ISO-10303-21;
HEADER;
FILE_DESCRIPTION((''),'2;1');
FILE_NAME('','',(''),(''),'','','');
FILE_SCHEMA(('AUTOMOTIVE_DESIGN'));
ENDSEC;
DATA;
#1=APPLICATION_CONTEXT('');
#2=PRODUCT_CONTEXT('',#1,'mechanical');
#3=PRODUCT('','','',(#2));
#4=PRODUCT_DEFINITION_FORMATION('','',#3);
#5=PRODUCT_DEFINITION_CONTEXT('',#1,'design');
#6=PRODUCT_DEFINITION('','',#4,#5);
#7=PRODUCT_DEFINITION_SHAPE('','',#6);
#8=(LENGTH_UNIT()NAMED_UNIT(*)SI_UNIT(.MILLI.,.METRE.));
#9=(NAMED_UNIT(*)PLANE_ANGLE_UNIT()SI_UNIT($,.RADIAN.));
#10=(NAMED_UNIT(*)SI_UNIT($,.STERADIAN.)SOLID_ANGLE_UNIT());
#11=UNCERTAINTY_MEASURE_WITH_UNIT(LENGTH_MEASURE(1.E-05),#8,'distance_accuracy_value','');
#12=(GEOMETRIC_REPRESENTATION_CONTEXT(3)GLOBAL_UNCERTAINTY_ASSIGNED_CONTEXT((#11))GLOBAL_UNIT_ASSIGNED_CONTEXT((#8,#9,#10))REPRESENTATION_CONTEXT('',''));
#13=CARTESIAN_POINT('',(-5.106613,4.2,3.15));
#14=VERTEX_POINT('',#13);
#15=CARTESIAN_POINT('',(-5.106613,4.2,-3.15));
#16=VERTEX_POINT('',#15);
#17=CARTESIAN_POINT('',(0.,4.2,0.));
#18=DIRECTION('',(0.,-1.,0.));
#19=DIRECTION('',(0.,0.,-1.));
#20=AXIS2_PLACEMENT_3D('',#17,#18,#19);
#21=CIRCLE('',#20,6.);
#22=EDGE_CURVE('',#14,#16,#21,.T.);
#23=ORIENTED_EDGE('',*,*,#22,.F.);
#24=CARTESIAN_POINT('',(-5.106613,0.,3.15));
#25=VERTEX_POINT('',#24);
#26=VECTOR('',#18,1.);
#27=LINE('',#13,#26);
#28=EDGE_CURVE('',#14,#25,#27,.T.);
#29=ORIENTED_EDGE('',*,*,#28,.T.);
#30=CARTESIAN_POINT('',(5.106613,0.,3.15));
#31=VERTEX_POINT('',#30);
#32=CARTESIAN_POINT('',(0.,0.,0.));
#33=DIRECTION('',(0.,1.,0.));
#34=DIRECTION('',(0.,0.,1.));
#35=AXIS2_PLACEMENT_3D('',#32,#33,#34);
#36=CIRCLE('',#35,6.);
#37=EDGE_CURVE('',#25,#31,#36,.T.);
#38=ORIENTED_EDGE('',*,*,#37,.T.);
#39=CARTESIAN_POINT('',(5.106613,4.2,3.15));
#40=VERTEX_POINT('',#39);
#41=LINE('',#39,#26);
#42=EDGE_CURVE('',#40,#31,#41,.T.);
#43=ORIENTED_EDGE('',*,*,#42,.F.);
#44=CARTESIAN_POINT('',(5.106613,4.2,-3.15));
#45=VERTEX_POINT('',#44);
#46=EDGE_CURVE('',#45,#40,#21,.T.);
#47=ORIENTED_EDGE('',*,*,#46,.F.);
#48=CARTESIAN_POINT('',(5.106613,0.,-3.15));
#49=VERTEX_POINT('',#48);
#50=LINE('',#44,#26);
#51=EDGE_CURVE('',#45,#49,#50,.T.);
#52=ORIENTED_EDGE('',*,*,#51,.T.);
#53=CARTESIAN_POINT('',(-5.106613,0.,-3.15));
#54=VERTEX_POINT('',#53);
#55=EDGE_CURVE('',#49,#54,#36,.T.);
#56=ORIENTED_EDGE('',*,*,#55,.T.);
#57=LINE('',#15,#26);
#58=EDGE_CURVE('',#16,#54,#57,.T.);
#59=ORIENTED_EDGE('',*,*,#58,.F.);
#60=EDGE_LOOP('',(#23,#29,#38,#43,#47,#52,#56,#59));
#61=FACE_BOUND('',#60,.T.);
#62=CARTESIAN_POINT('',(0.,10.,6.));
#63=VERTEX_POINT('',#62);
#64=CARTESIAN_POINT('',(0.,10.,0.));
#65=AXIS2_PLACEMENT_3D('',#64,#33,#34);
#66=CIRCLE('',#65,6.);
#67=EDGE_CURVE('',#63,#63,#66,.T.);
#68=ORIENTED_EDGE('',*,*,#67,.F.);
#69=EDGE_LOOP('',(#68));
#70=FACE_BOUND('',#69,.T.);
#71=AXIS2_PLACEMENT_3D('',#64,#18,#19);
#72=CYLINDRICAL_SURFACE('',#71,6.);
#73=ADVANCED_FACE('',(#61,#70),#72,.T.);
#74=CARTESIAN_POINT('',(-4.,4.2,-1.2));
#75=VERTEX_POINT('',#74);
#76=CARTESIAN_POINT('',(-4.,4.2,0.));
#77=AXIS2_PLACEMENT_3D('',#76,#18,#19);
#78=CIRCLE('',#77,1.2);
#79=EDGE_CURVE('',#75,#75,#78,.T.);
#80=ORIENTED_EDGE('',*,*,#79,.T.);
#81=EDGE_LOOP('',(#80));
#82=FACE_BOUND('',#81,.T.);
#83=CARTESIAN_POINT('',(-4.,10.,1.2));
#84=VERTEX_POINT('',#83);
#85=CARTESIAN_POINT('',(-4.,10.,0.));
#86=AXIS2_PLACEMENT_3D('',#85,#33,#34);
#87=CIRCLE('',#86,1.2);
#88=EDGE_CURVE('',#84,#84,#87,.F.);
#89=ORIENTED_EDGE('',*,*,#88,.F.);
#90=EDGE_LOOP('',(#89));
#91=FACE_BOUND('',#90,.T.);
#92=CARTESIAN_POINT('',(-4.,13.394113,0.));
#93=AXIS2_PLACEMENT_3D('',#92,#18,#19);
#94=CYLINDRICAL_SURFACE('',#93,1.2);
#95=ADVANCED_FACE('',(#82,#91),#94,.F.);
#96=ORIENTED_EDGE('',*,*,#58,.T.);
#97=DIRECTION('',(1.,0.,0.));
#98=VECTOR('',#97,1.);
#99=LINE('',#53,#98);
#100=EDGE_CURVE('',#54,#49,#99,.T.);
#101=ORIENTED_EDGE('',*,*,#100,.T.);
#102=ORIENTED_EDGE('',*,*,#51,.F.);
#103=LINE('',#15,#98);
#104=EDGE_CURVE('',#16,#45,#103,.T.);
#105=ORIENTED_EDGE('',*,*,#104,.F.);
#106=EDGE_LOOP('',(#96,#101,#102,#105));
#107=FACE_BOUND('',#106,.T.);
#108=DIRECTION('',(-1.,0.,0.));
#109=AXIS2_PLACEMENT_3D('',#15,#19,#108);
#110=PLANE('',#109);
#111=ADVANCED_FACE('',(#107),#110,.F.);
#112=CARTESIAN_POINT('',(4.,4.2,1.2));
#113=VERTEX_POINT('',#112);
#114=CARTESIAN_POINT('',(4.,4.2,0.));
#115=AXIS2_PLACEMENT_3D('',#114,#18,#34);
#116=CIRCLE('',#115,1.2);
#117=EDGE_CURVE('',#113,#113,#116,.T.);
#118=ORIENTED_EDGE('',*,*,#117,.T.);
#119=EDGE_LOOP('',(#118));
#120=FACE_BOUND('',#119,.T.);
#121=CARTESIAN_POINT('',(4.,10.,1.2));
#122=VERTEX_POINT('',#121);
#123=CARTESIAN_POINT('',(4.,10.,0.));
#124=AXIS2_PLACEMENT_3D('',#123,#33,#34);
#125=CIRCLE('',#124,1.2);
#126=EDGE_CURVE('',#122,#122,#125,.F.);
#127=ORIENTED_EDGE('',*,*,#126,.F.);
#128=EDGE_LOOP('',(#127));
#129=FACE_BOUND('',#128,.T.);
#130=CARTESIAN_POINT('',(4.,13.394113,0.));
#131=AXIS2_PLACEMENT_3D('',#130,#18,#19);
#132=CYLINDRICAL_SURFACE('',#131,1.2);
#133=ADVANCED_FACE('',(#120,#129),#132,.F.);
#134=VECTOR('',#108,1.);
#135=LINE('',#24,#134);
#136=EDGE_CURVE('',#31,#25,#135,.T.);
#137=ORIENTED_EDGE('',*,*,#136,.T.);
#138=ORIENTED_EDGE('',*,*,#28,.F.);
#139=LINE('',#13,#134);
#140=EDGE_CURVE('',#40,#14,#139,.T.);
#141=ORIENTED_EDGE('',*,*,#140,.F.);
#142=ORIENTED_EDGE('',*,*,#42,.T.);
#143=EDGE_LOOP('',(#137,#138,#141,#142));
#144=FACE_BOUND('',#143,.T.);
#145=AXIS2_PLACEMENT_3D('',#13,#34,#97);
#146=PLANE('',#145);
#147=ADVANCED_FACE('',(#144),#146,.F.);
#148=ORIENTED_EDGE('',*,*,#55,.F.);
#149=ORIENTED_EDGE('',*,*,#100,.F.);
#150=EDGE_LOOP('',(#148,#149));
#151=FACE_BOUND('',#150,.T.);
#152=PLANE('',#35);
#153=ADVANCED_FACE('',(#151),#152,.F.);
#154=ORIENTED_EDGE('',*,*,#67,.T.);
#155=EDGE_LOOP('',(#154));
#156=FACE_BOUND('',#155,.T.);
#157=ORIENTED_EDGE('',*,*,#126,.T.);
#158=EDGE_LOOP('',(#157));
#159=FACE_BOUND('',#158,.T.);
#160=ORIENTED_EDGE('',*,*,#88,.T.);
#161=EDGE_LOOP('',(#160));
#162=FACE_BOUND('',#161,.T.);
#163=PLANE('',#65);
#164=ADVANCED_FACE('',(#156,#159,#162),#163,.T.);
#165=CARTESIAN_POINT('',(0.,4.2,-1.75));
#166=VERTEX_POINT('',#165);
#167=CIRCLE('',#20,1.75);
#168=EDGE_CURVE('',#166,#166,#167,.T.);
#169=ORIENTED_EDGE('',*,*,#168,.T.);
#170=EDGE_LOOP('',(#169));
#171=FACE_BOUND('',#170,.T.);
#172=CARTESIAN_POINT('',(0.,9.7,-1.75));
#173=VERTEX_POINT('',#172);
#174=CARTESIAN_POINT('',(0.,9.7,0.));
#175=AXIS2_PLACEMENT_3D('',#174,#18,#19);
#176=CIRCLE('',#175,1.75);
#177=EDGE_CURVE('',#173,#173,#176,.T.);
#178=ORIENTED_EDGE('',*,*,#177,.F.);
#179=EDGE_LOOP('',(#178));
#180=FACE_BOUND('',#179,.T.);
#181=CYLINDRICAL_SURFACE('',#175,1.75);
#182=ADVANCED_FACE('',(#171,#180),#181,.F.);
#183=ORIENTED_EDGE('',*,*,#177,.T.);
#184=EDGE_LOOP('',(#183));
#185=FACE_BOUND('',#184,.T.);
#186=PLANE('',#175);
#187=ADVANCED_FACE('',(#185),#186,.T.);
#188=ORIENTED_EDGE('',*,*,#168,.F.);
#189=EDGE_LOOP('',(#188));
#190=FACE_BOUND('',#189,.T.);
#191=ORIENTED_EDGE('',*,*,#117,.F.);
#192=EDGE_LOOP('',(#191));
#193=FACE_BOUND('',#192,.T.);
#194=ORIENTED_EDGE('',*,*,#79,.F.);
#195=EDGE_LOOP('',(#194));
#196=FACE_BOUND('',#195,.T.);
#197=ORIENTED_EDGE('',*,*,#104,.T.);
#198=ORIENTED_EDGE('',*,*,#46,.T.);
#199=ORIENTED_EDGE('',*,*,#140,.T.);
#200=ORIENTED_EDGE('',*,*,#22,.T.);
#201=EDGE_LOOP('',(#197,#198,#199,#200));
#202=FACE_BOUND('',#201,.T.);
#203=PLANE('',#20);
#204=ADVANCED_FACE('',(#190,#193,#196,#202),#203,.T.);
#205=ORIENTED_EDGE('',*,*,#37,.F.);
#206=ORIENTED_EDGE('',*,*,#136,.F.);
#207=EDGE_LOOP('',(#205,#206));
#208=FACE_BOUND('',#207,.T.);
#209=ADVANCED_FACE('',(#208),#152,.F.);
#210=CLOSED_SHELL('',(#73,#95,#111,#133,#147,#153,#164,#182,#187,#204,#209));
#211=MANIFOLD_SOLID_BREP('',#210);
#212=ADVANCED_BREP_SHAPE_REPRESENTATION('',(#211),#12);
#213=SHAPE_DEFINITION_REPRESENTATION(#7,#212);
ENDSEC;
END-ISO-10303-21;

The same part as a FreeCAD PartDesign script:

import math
import FreeCAD as App
import Part
import Sketcher

doc = App.newDocument("Part")
body = doc.addObject("PartDesign::Body", "Body")

sketch1 = body.newObject("Sketcher::SketchObject", "Sketch")
sketch1.AttachmentSupport = (doc.getObject("XZ_Plane"), [""])
sketch1.MapMode = "FlatFace"
sketch1.addGeometry(Part.Circle(App.Vector(0, 0, 0), App.Vector(0, 0, 1), 6), False)
sketch1.addConstraint([
    Sketcher.Constraint("Coincident", 0, 3, -1, 1),
    Sketcher.Constraint("Diameter", 0, 12.0),
])
pad1 = body.newObject("PartDesign::Pad", "Pad")
pad1.Profile = sketch1
pad1.Length = 10
pad1.Reversed = True

sketch2 = body.newObject("Sketcher::SketchObject", "Sketch001")
sketch2.AttachmentSupport = (doc.getObject("XZ_Plane"), [""])
sketch2.MapMode = "FlatFace"
sketch2.addGeometry([
    Part.LineSegment(App.Vector(5, 3, 0), App.Vector(-5, 3, 0)),
    Part.ArcOfCircle(Part.Circle(App.Vector(0, 0, 0), App.Vector(0, 0, 1), 6), math.radians(148), math.radians(212)),
    Part.LineSegment(App.Vector(-5, -3, 0), App.Vector(5, -3, 0)),
    Part.ArcOfCircle(Part.Circle(App.Vector(0, 0, 0), App.Vector(0, 0, 1), 6), math.radians(-32), math.radians(32)),
], False)
sketch2.addConstraint([
    Sketcher.Constraint("Coincident", 0, 2, 1, 1),
    Sketcher.Constraint("Coincident", 1, 2, 2, 1),
    Sketcher.Constraint("Coincident", 2, 2, 3, 1),
    Sketcher.Constraint("Coincident", 3, 2, 0, 1),
    Sketcher.Constraint("Horizontal", 0),
    Sketcher.Constraint("Horizontal", 2),
    Sketcher.Constraint("Coincident", 1, 3, -1, 1),
    Sketcher.Constraint("Coincident", 3, 3, -1, 1),
    Sketcher.Constraint("Equal", 1, 3),
    Sketcher.Constraint("Vertical", 0, 2, 1, 2),
    Sketcher.Constraint("Radius", 1, 6.0),
    Sketcher.Constraint("DistanceY", 1, 2, 0, 2, 6.3),
])
pocket1 = body.newObject("PartDesign::Pocket", "Pocket")
pocket1.Profile = sketch2
pocket1.Length = 4.2

sketch3 = body.newObject("Sketcher::SketchObject", "Sketch002")
sketch3.AttachmentSupport = (doc.getObject("XZ_Plane"), [""])
sketch3.MapMode = "FlatFace"
sketch3.AttachmentOffset = App.Placement(App.Vector(0, 0, -4.2), App.Rotation())
sketch3.addGeometry(Part.Circle(App.Vector(0, 0, 0), App.Vector(0, 0, 1), 1.8), False)
sketch3.addConstraint([
    Sketcher.Constraint("Coincident", 0, 3, -1, 1),
    Sketcher.Constraint("Diameter", 0, 3.5),
])
pocket2 = body.newObject("PartDesign::Pocket", "Pocket001")
pocket2.Profile = sketch3
pocket2.Length = 5.5

sketch4 = body.newObject("Sketcher::SketchObject", "Sketch003")
sketch4.AttachmentSupport = (doc.getObject("XZ_Plane"), [""])
sketch4.MapMode = "FlatFace"
sketch4.AttachmentOffset = App.Placement(App.Vector(0, 0, -4.2), App.Rotation())
sketch4.addGeometry([
    Part.Circle(App.Vector(-4, 0, 0), App.Vector(0, 0, 1), 1.2),
    Part.Circle(App.Vector(4, 0, 0), App.Vector(0, 0, 1), 1.2),
], False)
sketch4.addConstraint([
    Sketcher.Constraint("Equal", 0, 1),
    Sketcher.Constraint("Symmetric", 0, 3, 1, 3, -1, 1),
    Sketcher.Constraint("PointOnObject", 0, 3, -1),
    Sketcher.Constraint("Diameter", 0, 2.4),
    Sketcher.Constraint("DistanceX", 0, 3, -1, 1, 4.0),
])
pocket3 = body.newObject("PartDesign::Pocket", "Pocket002")
pocket3.Profile = sketch4
pocket3.Length = 5.8

doc.recompute()
